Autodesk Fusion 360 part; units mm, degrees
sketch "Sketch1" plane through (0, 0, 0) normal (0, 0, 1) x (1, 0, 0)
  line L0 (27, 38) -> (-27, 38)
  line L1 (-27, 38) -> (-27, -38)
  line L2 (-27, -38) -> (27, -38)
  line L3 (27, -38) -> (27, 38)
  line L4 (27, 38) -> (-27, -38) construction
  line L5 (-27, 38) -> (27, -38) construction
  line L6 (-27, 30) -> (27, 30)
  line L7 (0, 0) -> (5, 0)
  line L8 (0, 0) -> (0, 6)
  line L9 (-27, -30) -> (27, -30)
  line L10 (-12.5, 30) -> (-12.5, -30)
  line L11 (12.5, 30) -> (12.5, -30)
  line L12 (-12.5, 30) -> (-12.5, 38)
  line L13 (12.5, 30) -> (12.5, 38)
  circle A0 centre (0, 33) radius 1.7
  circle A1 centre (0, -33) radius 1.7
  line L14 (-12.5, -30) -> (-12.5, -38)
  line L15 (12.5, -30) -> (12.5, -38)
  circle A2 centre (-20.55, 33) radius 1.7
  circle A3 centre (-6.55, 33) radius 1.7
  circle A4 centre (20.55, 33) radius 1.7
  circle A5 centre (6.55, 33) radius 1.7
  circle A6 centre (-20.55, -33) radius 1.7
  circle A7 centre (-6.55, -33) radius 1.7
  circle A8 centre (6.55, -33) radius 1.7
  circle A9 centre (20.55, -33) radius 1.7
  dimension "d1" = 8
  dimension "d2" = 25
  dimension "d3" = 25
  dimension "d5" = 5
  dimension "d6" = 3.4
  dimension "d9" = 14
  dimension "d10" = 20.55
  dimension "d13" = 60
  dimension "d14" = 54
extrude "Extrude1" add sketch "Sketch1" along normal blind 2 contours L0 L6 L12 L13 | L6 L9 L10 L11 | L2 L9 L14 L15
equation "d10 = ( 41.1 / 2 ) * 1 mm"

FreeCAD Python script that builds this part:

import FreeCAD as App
import Part
import Sketcher
from FreeCAD import Vector


def add_polygon(sketch, points):
    """Adds a closed chain of lines whose ends are joined by coincident constraints."""
    first, n = sketch.GeometryCount, len(points)
    for a, b in zip(points, points[1:] + points[:1]):
        sketch.addGeometry(Part.LineSegment(App.Vector(*a, 0), App.Vector(*b, 0)), False)
    for i in range(n):
        sketch.addConstraint(Sketcher.Constraint("Coincident", first + i, 2, first + (i + 1) % n, 1))

doc = App.newDocument("Part")
body = doc.addObject("PartDesign::Body", "Body")

# Sketch on XY plane
sketch1 = body.newObject("Sketcher::SketchObject", "Sketch")
sketch1.AttachmentSupport = (doc.getObject("XY_Plane"), [""])
sketch1.MapMode = "FlatFace"
add_polygon(sketch1, [(12.5, 38), (-12.5, 38), (-12.5, -38), (12.5, -38)])  # lines 0-3
sketch1.addGeometry(Part.Circle(Vector(-6.5, 33, 0), Vector(0, 0, 1), 1.7), False)  # 4
sketch1.addGeometry(Part.Circle(Vector(0, 33, 0), Vector(0, 0, 1), 1.7), False)  # 5
sketch1.addGeometry(Part.Circle(Vector(6.5, 33, 0), Vector(0, 0, 1), 1.7), False)  # 6
sketch1.addGeometry(Part.Circle(Vector(6.5, -33, 0), Vector(0, 0, 1), 1.7), False)  # 7
sketch1.addGeometry(Part.Circle(Vector(-6.5, -33, 0), Vector(0, 0, 1), 1.7), False)  # 8
sketch1.addGeometry(Part.Circle(Vector(0, -33, 0), Vector(0, 0, 1), 1.7), False)  # 9
sketch1.addConstraint([
    Sketcher.Constraint("Horizontal", 0),
    Sketcher.Constraint("Vertical", 1),
    Sketcher.Constraint("Horizontal", 2),
    Sketcher.Constraint("Vertical", 3),
    Sketcher.Constraint("Equal", 4, 5),
    Sketcher.Constraint("Equal", 5, 6),
    Sketcher.Constraint("Equal", 6, 7),
    Sketcher.Constraint("Equal", 7, 8),
    Sketcher.Constraint("Equal", 8, 9),
    Sketcher.Constraint("Symmetric", 4, 3, 7, 3, -1, 1),
    Sketcher.Constraint("Symmetric", 6, 3, 8, 3, -1, 1),
    Sketcher.Constraint("Symmetric", 5, 3, 9, 3, -1, 1),
    Sketcher.Constraint("Symmetric", 0, 2, 2, 2, -1, 1),
    Sketcher.Constraint("Symmetric", 4, 3, 6, 3, -2),
    Sketcher.Constraint("PointOnObject", 5, 3, -2),
    Sketcher.Constraint("Horizontal", 4, 3, 5, 3),
    Sketcher.Constraint("Diameter", 4, 3.4),
    Sketcher.Constraint("DistanceX", 0, 2, 0, 1, 25.0),
    Sketcher.Constraint("DistanceY", 4, 3, 0, 2, 5.0),
    Sketcher.Constraint("DistanceY", 1, 2, 1, 1, 76.0),
    Sketcher.Constraint("DistanceX", 4, 3, 6, 3, 13.1),
])
pad1 = body.newObject("PartDesign::Pad", "Pad")
pad1.Profile = sketch1
pad1.Length = 2

doc.recompute()
